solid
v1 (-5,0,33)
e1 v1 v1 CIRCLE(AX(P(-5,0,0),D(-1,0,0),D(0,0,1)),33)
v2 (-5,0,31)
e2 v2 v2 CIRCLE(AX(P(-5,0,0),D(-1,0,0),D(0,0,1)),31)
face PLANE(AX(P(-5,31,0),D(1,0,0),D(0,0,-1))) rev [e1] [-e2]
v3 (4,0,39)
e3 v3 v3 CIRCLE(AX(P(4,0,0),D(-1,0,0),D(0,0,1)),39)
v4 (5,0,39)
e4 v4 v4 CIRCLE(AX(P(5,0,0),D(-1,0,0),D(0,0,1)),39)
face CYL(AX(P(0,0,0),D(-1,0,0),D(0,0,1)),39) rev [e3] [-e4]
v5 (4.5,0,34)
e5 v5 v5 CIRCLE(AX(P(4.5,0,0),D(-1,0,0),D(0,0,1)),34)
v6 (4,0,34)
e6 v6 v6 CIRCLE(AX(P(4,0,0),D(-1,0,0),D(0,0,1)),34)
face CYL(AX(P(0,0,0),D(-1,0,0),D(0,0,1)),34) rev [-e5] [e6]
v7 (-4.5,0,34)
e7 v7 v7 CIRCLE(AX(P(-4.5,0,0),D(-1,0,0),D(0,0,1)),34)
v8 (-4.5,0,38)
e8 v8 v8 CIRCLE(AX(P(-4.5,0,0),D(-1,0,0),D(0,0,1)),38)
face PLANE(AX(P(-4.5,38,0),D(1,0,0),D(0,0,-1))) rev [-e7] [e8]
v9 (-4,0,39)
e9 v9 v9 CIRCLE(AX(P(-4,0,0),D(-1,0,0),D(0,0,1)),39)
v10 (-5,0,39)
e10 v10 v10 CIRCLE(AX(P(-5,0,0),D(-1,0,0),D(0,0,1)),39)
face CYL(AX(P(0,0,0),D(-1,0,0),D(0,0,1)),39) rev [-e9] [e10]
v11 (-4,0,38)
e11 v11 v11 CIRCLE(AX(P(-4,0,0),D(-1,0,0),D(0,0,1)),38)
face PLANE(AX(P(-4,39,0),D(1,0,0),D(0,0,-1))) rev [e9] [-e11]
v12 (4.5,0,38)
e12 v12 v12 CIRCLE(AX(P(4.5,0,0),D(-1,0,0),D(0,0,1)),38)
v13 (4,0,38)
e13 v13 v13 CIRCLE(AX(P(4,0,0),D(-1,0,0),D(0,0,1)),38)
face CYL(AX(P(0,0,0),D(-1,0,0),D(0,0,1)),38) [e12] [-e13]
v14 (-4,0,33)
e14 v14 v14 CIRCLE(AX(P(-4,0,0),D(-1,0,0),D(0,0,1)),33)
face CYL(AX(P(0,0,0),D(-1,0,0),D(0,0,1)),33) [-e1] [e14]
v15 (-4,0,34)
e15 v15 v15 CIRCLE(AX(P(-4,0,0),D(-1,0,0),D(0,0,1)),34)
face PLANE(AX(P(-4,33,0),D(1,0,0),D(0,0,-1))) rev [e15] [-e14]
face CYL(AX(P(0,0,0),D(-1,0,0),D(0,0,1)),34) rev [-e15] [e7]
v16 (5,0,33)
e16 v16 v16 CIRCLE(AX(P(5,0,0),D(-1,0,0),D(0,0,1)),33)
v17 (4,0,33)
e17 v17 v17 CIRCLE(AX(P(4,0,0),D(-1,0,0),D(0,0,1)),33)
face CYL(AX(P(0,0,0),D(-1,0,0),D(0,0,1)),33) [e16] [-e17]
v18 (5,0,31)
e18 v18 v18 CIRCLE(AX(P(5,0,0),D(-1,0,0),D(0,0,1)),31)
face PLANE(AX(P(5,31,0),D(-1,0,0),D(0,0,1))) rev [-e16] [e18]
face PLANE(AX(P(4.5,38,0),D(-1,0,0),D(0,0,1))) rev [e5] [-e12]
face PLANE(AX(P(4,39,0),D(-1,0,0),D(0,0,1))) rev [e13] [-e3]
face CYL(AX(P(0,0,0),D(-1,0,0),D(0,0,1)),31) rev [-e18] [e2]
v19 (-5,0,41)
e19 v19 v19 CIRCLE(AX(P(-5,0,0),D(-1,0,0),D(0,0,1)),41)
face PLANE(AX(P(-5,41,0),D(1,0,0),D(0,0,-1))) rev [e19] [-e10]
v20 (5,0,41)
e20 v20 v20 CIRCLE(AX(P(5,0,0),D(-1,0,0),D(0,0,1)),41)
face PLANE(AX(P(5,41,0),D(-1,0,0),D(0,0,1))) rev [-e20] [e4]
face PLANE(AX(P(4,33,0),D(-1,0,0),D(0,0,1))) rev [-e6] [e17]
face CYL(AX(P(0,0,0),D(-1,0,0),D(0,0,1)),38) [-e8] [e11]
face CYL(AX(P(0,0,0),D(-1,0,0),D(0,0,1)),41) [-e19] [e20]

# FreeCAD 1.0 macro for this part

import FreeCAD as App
import Part
import Sketcher
from FreeCAD import Vector

doc = App.newDocument("Part")
body = doc.addObject("PartDesign::Body", "Body")

# Sketch on XY plane
sketch1 = body.newObject("Sketcher::SketchObject", "Sketch")
sketch1.AttachmentSupport = (doc.getObject("XY_Plane"), [""])
sketch1.MapMode = "FlatFace"
sketch1.addGeometry([
    Part.LineSegment(Vector(5, 41, 0), Vector(-5, 41, 0)),  # 0
    Part.LineSegment(Vector(-5, 41, 0), Vector(-5, 39, 0)),  # 1
    Part.LineSegment(Vector(-5, 39, 0), Vector(-4, 39, 0)),  # 2
    Part.LineSegment(Vector(-4, 39, 0), Vector(-4, 38, 0)),  # 3
    Part.LineSegment(Vector(-4, 38, 0), Vector(-4.5, 38, 0)),  # 4
    Part.LineSegment(Vector(-4.5, 38, 0), Vector(-4.5, 34, 0)),  # 5
    Part.LineSegment(Vector(-4.5, 34, 0), Vector(-4, 34, 0)),  # 6
    Part.LineSegment(Vector(-4, 34, 0), Vector(-4, 33, 0)),  # 7
    Part.LineSegment(Vector(-4, 33, 0), Vector(-5, 33, 0)),  # 8
    Part.LineSegment(Vector(-5, 33, 0), Vector(-5, 31, 0)),  # 9
    Part.LineSegment(Vector(-5, 31, 0), Vector(5, 31, 0)),  # 10
    Part.LineSegment(Vector(5, 31, 0), Vector(5, 33, 0)),  # 11
    Part.LineSegment(Vector(5, 33, 0), Vector(4, 33, 0)),  # 12
    Part.LineSegment(Vector(4, 33, 0), Vector(4, 34, 0)),  # 13
    Part.LineSegment(Vector(4, 34, 0), Vector(4.5, 34, 0)),  # 14
    Part.LineSegment(Vector(4.5, 34, 0), Vector(4.5, 38, 0)),  # 15
    Part.LineSegment(Vector(4.5, 38, 0), Vector(4, 38, 0)),  # 16
    Part.LineSegment(Vector(4, 38, 0), Vector(4, 39, 0)),  # 17
    Part.LineSegment(Vector(4, 39, 0), Vector(5, 39, 0)),  # 18
    Part.LineSegment(Vector(5, 39, 0), Vector(5, 41, 0)),  # 19
], False)
sketch1.addConstraint([
    Sketcher.Constraint("Coincident", 0, 2, 1, 1),
    Sketcher.Constraint("Coincident", 1, 2, 2, 1),
    Sketcher.Constraint("Coincident", 2, 2, 3, 1),
    Sketcher.Constraint("Coincident", 3, 2, 4, 1),
    Sketcher.Constraint("Coincident", 4, 2, 5, 1),
    Sketcher.Constraint("Coincident", 5, 2, 6, 1),
    Sketcher.Constraint("Coincident", 6, 2, 7, 1),
    Sketcher.Constraint("Coincident", 7, 2, 8, 1),
    Sketcher.Constraint("Coincident", 8, 2, 9, 1),
    Sketcher.Constraint("Coincident", 9, 2, 10, 1),
    Sketcher.Constraint("Coincident", 10, 2, 11, 1),
    Sketcher.Constraint("Coincident", 11, 2, 12, 1),
    Sketcher.Constraint("Coincident", 12, 2, 13, 1),
    Sketcher.Constraint("Coincident", 13, 2, 14, 1),
    Sketcher.Constraint("Coincident", 14, 2, 15, 1),
    Sketcher.Constraint("Coincident", 15, 2, 16, 1),
    Sketcher.Constraint("Coincident", 16, 2, 17, 1),
    Sketcher.Constraint("Coincident", 17, 2, 18, 1),
    Sketcher.Constraint("Coincident", 18, 2, 19, 1),
    Sketcher.Constraint("Coincident", 19, 2, 0, 1),
    Sketcher.Constraint("Horizontal", 0),
    Sketcher.Constraint("Vertical", 1),
    Sketcher.Constraint("Horizontal", 2),
    Sketcher.Constraint("Vertical", 3),
    Sketcher.Constraint("Horizontal", 4),
    Sketcher.Constraint("Vertical", 5),
    Sketcher.Constraint("Horizontal", 6),
    Sketcher.Constraint("Vertical", 7),
    Sketcher.Constraint("Horizontal", 8),
    Sketcher.Constraint("Vertical", 9),
    Sketcher.Constraint("Horizontal", 10),
    Sketcher.Constraint("Vertical", 11),
    Sketcher.Constraint("Horizontal", 12),
    Sketcher.Constraint("Vertical", 13),
    Sketcher.Constraint("Horizontal", 14),
    Sketcher.Constraint("Vertical", 15),
    Sketcher.Constraint("Horizontal", 16),
    Sketcher.Constraint("Vertical", 17),
    Sketcher.Constraint("Horizontal", 18),
    Sketcher.Constraint("Vertical", 19),
    Sketcher.Constraint("Symmetric", 8, 2, 11, 2, -2),
    Sketcher.Constraint("Symmetric", 6, 2, 13, 2, -2),
    Sketcher.Constraint("Symmetric", 4, 2, 15, 2, -2),
    Sketcher.Constraint("Symmetric", 2, 2, 17, 2, -2),
    Sketcher.Constraint("Vertical", 3, 2, 6, 2),
    Sketcher.Constraint("Vertical", 1, 2, 8, 2),
    Sketcher.Constraint("Vertical", 11, 2, 18, 2),
    Sketcher.Constraint("Equal", 18, 3),
    Sketcher.Constraint("Equal", 3, 7),
    Sketcher.Constraint("Equal", 1, 9),
    Sketcher.Constraint("DistanceX", 0, 2, 0, 1, 10.0),
    Sketcher.Constraint("DistanceX", 2, 1, 2, 2, 1.0),
    Sketcher.Constraint("DistanceY", 1, 2, 1, 1, 2.0),
    Sketcher.Constraint("DistanceY", 5, 2, 5, 1, 4.0),
    Sketcher.Constraint("DistanceX", 4, 2, 4, 1, 0.5),
    Sketcher.Constraint("DistanceY", -1, 1, 0, 2, 41.0),
])
revolution = body.newObject("PartDesign::Revolution", "Revolution")
revolution.Profile = sketch1
revolution.ReferenceAxis = (sketch1, ["H_Axis"])
revolution.Angle = 360

doc.recompute()
